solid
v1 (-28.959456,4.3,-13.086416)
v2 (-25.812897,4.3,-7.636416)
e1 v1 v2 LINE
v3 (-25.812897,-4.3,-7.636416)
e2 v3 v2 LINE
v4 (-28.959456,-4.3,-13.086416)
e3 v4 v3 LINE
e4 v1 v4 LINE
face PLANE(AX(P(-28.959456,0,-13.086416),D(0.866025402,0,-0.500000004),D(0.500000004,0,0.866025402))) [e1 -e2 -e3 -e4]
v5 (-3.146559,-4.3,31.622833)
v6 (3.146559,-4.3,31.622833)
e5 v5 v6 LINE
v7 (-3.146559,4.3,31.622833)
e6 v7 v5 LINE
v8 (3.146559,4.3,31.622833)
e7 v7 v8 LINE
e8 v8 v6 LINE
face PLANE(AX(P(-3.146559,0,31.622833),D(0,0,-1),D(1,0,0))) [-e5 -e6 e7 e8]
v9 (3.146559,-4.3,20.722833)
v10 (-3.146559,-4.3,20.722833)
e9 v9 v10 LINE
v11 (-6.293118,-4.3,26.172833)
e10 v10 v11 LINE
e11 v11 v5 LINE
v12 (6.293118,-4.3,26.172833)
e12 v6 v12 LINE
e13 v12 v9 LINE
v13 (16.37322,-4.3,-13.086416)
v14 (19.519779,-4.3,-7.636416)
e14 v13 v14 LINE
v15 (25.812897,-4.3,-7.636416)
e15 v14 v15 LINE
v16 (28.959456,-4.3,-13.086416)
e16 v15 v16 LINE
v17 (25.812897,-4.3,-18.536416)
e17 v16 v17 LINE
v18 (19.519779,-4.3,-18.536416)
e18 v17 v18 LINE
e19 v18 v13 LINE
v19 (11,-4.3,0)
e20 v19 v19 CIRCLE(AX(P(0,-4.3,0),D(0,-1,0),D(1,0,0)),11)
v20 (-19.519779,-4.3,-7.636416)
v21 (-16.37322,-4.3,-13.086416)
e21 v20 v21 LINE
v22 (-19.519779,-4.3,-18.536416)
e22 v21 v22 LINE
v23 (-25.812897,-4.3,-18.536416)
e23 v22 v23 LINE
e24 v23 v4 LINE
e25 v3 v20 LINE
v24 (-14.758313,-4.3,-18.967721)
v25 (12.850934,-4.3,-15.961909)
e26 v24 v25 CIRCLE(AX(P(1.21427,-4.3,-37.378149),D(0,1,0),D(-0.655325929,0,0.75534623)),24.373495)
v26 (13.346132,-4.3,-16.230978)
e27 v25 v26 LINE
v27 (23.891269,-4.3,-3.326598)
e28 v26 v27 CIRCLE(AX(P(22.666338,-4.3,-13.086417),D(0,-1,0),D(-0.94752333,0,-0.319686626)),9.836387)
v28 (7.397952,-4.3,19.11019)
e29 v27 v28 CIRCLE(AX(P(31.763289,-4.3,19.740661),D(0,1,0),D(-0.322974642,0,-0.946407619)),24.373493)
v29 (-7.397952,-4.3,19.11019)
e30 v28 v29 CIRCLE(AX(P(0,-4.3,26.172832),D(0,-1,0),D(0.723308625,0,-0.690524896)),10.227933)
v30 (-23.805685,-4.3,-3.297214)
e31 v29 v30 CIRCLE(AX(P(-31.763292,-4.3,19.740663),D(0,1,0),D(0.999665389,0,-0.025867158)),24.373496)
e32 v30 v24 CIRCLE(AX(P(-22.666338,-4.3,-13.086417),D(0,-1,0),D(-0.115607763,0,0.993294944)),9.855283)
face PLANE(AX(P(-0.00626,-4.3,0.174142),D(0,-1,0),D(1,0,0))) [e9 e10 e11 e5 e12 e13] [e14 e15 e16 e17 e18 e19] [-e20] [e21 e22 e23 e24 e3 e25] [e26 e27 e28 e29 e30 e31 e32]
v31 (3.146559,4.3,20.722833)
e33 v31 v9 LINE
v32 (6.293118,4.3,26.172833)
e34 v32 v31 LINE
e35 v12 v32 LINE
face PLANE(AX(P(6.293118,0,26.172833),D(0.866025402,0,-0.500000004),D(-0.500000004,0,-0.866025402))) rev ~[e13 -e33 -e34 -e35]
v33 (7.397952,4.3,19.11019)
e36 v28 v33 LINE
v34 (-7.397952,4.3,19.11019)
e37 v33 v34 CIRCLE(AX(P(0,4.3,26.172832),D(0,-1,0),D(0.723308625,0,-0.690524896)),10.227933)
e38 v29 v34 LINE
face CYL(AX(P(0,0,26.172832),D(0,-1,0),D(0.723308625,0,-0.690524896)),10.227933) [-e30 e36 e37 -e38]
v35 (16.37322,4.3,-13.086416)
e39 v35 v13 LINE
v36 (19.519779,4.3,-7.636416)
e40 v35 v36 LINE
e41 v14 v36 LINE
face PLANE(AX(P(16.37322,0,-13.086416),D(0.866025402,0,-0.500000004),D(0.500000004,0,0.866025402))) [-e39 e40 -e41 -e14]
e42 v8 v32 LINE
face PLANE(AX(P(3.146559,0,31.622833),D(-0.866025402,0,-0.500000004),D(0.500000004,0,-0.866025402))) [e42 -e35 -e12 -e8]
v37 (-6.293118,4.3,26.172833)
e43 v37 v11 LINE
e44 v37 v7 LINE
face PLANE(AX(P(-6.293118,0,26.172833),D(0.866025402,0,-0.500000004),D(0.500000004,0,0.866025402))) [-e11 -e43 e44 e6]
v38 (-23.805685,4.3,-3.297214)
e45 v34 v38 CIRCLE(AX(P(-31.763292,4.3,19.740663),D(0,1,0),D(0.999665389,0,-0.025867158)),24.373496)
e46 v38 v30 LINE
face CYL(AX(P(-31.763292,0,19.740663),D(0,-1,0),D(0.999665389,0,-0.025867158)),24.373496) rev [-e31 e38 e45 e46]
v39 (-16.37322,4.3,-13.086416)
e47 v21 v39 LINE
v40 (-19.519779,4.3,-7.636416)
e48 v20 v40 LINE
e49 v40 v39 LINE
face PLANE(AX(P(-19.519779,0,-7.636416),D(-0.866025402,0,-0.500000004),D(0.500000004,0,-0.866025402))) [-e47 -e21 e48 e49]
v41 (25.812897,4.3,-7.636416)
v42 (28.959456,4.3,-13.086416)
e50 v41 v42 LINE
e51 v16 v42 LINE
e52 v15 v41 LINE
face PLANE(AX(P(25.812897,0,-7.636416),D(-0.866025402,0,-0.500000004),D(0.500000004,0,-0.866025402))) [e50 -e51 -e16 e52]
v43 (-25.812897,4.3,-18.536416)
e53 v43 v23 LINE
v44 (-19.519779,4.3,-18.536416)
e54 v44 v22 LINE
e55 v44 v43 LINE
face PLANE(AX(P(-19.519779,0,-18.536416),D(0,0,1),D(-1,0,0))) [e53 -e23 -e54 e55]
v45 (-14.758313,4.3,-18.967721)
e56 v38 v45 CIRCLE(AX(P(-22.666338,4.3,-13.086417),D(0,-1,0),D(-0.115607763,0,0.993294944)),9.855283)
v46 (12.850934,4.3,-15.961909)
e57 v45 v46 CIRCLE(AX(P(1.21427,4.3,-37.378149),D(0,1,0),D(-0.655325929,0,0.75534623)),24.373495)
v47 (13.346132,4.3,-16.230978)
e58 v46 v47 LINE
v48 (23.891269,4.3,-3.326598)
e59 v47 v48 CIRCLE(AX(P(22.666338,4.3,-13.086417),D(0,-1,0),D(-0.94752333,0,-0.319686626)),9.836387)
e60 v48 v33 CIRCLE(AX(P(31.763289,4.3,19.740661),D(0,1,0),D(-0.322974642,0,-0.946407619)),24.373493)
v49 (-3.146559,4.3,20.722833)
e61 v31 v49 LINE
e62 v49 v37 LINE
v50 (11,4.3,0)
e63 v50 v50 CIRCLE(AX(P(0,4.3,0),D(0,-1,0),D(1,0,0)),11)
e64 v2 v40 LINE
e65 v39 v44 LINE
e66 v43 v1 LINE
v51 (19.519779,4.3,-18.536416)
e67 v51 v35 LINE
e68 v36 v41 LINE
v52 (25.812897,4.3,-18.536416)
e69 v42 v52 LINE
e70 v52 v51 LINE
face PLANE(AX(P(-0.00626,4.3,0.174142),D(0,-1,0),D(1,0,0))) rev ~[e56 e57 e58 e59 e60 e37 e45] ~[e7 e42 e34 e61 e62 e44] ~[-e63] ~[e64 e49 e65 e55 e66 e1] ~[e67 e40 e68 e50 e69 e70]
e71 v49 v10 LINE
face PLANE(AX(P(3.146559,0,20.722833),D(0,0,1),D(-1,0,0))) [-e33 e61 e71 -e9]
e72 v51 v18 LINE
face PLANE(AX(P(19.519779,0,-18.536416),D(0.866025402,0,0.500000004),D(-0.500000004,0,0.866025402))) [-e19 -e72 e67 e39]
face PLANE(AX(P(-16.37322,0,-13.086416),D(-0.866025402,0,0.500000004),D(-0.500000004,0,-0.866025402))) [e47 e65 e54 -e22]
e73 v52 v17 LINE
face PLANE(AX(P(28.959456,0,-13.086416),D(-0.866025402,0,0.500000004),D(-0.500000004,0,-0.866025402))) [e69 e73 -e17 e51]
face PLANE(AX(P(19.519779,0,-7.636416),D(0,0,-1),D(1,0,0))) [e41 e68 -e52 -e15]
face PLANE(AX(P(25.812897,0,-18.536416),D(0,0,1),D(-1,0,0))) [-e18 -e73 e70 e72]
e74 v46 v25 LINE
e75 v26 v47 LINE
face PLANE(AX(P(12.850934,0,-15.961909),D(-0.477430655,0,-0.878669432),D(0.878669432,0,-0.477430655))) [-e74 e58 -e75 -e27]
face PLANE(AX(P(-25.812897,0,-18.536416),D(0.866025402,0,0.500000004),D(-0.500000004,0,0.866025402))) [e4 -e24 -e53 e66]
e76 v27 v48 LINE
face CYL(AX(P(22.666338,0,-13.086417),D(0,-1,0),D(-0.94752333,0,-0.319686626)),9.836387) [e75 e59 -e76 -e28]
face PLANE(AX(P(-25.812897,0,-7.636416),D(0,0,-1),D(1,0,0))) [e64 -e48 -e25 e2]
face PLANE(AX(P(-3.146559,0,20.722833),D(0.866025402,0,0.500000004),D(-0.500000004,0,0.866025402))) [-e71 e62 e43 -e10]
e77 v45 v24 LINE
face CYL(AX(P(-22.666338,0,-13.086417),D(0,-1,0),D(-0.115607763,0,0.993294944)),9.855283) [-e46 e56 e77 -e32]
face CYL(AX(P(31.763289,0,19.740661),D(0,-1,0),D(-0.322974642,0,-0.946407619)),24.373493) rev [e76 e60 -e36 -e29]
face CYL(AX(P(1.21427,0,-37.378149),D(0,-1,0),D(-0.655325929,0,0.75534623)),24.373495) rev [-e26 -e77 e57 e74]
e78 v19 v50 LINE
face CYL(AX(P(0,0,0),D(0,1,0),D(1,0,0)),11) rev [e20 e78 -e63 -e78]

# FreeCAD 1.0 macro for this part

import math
import FreeCAD as App
import Part
import Sketcher
Q = App.Units.Quantity


def add_polygon(sketch, points):
    """Adds a closed chain of lines whose ends are joined by coincident constraints."""
    first, n = sketch.GeometryCount, len(points)
    for a, b in zip(points, points[1:] + points[:1]):
        sketch.addGeometry(Part.LineSegment(App.Vector(*a, 0), App.Vector(*b, 0)), False)
    for i in range(n):
        sketch.addConstraint(Sketcher.Constraint("Coincident", first + i, 2, first + (i + 1) % n, 1))

doc = App.newDocument("Part")
body = doc.addObject("PartDesign::Body", "Body")

# Sketch on XZ plane
sketch1 = body.newObject("Sketcher::SketchObject", "Sketch")
sketch1.AttachmentSupport = (doc.getObject("XZ_Plane"), [""])
sketch1.MapMode = "FlatFace"
sketch1.addGeometry(Part.ArcOfCircle(Part.Circle(App.Vector(-31.8, 19.7, 0), App.Vector(0, 0, 1), 24.4), math.radians(-71), math.radians(-1)), False)  # 0
sketch1.addGeometry(Part.ArcOfCircle(Part.Circle(App.Vector(-22.7, -13.1, 0), App.Vector(0, 0, 1), 9.9), math.radians(97), math.radians(323)), False)  # 1
sketch1.addGeometry(Part.ArcOfCircle(Part.Circle(App.Vector(1.2, -37.4, 0), App.Vector(0, 0, 1), 24.4), math.radians(61), math.radians(131)), False)  # 2
sketch1.addGeometry(Part.LineSegment(App.Vector(12.9, -16, 0), App.Vector(13.3, -16.2, 0)), False)  # 3
sketch1.addGeometry(Part.ArcOfCircle(Part.Circle(App.Vector(22.7, -13.1, 0), App.Vector(0, 0, 1), 9.8), math.radians(-161), math.radians(83)), False)  # 4
sketch1.addGeometry(Part.ArcOfCircle(Part.Circle(App.Vector(31.8, 19.7, 0), App.Vector(0, 0, 1), 24.4), math.radians(-179), math.radians(-109)), False)  # 5
sketch1.addGeometry(Part.ArcOfCircle(Part.Circle(App.Vector(0, 26.2, 0), App.Vector(0, 0, 1), 10.2), math.radians(-44), math.radians(224)), False)  # 6
add_polygon(sketch1, [(-16.4, -13.1), (-19.5, -18.5), (-25.8, -18.5), (-29, -13.1), (-25.8, -7.6), (-19.5, -7.6)])  # lines 7-12
add_polygon(sketch1, [(29, -13.1), (25.8, -18.5), (19.5, -18.5), (16.4, -13.1), (19.5, -7.6), (25.8, -7.6)])  # lines 13-18
sketch1.addGeometry(Part.Circle(App.Vector(0, 0, 0), App.Vector(0, 0, 1), 11), False)  # 19
add_polygon(sketch1, [(3.1, 31.6), (6.3, 26.2), (3.1, 20.7), (-3.1, 20.7), (-6.3, 26.2), (-3.1, 31.6)])  # lines 20-25
sketch1.addConstraint([
    Sketcher.Constraint("Coincident", 0, 1, 1, 1),
    Sketcher.Constraint("Coincident", 1, 2, 2, 2),
    Sketcher.Constraint("Tangent", 2, 1, 3, 1),
    Sketcher.Constraint("Coincident", 3, 2, 4, 1),
    Sketcher.Constraint("Coincident", 4, 2, 5, 2),
    Sketcher.Constraint("Coincident", 5, 1, 6, 1),
    Sketcher.Constraint("Coincident", 6, 2, 0, 2),
    Sketcher.Constraint("Horizontal", 8),
    Sketcher.Constraint("Horizontal", 11),
    Sketcher.Constraint("Horizontal", 14),
    Sketcher.Constraint("Horizontal", 17),
    Sketcher.Constraint("Horizontal", 22),
    Sketcher.Constraint("Horizontal", 25),
    Sketcher.Constraint("Coincident", 19, 3, -1, 1),
    Sketcher.Constraint("Equal", 0, 2),
    Sketcher.Constraint("Symmetric", 1, 3, 4, 3, -2),
    Sketcher.Constraint("Symmetric", 0, 3, 5, 3, -2),
    Sketcher.Constraint("Symmetric", 5, 1, 6, 2, -2),
    Sketcher.Constraint("Symmetric", 8, 2, 13, 2, -2),
    Sketcher.Constraint("Symmetric", 12, 2, 15, 2, -2),
    Sketcher.Constraint("Symmetric", 11, 2, 16, 2, -2),
    Sketcher.Constraint("Symmetric", 9, 2, 18, 2, -2),
    Sketcher.Constraint("Symmetric", 20, 2, 23, 2, -2),
    Sketcher.Constraint("Parallel", 7, 10),
    Sketcher.Constraint("Parallel", 9, 12),
    Sketcher.Constraint("Parallel", 10, 13),
    Sketcher.Constraint("Parallel", 12, 15),
    Sketcher.Constraint("Parallel", 15, 18),
    Sketcher.Constraint("Parallel", 18, 20),
    Sketcher.Constraint("Parallel", 16, 21),
    Sketcher.Constraint("Parallel", 20, 23),
    Sketcher.Constraint("Parallel", 21, 24),
    Sketcher.Constraint("Horizontal", 4, 3, 9, 2),
    Sketcher.Constraint("Horizontal", 9, 2, 12, 2),
    Sketcher.Constraint("Horizontal", 6, 3, 20, 2),
    Sketcher.Constraint("Vertical", 8, 2, 10, 2),
    Sketcher.Constraint("Vertical", 22, 2, 24, 2),
    Sketcher.Constraint("Equal", 17, 22),
    Sketcher.Constraint("Equal", 18, 20),
    Sketcher.Constraint("Diameter", 19, 22.0),
    Sketcher.Constraint("Angle", 7, Q("-120 deg")),
    Sketcher.Constraint("DistanceY", 8, 2, 10, 2, 10.9),
    Sketcher.Constraint("Radius", 0, 24.373496),
    Sketcher.Constraint("Radius", 1, 9.855283),
    Sketcher.Constraint("Radius", 4, 9.836387),
    Sketcher.Constraint("Radius", 6, 10.227933),
    Sketcher.Constraint("DistanceY", 2, 1, 5, 1, 35.072099),
    Sketcher.Constraint("DistanceY", 7, 2, 0, 1, 15.239202),
    Sketcher.Constraint("DistanceX", 8, 2, 8, 1, 6.293118),
    Sketcher.Constraint("DistanceX", 0, 3, -1, 1, 31.763292),
    Sketcher.Constraint("DistanceX", -1, 1, 2, 3, 1.21427),
    Sketcher.Constraint("DistanceY", 2, 3, -1, 1, 37.378149),
    Sketcher.Constraint("DistanceX", -1, 1, 4, 3, 22.666338),
    Sketcher.Constraint("DistanceY", -1, 1, 5, 3, 19.740661),
    Sketcher.Constraint("DistanceY", 2, 1, -1, 1, 15.961909),
    Sketcher.Constraint("DistanceX", 7, 2, -1, 1, 19.519779),
])
pad1 = body.newObject("PartDesign::Pad", "Pad")
pad1.Profile = sketch1
pad1.Length = 8.6
pad1.Midplane = True

doc.recompute()
